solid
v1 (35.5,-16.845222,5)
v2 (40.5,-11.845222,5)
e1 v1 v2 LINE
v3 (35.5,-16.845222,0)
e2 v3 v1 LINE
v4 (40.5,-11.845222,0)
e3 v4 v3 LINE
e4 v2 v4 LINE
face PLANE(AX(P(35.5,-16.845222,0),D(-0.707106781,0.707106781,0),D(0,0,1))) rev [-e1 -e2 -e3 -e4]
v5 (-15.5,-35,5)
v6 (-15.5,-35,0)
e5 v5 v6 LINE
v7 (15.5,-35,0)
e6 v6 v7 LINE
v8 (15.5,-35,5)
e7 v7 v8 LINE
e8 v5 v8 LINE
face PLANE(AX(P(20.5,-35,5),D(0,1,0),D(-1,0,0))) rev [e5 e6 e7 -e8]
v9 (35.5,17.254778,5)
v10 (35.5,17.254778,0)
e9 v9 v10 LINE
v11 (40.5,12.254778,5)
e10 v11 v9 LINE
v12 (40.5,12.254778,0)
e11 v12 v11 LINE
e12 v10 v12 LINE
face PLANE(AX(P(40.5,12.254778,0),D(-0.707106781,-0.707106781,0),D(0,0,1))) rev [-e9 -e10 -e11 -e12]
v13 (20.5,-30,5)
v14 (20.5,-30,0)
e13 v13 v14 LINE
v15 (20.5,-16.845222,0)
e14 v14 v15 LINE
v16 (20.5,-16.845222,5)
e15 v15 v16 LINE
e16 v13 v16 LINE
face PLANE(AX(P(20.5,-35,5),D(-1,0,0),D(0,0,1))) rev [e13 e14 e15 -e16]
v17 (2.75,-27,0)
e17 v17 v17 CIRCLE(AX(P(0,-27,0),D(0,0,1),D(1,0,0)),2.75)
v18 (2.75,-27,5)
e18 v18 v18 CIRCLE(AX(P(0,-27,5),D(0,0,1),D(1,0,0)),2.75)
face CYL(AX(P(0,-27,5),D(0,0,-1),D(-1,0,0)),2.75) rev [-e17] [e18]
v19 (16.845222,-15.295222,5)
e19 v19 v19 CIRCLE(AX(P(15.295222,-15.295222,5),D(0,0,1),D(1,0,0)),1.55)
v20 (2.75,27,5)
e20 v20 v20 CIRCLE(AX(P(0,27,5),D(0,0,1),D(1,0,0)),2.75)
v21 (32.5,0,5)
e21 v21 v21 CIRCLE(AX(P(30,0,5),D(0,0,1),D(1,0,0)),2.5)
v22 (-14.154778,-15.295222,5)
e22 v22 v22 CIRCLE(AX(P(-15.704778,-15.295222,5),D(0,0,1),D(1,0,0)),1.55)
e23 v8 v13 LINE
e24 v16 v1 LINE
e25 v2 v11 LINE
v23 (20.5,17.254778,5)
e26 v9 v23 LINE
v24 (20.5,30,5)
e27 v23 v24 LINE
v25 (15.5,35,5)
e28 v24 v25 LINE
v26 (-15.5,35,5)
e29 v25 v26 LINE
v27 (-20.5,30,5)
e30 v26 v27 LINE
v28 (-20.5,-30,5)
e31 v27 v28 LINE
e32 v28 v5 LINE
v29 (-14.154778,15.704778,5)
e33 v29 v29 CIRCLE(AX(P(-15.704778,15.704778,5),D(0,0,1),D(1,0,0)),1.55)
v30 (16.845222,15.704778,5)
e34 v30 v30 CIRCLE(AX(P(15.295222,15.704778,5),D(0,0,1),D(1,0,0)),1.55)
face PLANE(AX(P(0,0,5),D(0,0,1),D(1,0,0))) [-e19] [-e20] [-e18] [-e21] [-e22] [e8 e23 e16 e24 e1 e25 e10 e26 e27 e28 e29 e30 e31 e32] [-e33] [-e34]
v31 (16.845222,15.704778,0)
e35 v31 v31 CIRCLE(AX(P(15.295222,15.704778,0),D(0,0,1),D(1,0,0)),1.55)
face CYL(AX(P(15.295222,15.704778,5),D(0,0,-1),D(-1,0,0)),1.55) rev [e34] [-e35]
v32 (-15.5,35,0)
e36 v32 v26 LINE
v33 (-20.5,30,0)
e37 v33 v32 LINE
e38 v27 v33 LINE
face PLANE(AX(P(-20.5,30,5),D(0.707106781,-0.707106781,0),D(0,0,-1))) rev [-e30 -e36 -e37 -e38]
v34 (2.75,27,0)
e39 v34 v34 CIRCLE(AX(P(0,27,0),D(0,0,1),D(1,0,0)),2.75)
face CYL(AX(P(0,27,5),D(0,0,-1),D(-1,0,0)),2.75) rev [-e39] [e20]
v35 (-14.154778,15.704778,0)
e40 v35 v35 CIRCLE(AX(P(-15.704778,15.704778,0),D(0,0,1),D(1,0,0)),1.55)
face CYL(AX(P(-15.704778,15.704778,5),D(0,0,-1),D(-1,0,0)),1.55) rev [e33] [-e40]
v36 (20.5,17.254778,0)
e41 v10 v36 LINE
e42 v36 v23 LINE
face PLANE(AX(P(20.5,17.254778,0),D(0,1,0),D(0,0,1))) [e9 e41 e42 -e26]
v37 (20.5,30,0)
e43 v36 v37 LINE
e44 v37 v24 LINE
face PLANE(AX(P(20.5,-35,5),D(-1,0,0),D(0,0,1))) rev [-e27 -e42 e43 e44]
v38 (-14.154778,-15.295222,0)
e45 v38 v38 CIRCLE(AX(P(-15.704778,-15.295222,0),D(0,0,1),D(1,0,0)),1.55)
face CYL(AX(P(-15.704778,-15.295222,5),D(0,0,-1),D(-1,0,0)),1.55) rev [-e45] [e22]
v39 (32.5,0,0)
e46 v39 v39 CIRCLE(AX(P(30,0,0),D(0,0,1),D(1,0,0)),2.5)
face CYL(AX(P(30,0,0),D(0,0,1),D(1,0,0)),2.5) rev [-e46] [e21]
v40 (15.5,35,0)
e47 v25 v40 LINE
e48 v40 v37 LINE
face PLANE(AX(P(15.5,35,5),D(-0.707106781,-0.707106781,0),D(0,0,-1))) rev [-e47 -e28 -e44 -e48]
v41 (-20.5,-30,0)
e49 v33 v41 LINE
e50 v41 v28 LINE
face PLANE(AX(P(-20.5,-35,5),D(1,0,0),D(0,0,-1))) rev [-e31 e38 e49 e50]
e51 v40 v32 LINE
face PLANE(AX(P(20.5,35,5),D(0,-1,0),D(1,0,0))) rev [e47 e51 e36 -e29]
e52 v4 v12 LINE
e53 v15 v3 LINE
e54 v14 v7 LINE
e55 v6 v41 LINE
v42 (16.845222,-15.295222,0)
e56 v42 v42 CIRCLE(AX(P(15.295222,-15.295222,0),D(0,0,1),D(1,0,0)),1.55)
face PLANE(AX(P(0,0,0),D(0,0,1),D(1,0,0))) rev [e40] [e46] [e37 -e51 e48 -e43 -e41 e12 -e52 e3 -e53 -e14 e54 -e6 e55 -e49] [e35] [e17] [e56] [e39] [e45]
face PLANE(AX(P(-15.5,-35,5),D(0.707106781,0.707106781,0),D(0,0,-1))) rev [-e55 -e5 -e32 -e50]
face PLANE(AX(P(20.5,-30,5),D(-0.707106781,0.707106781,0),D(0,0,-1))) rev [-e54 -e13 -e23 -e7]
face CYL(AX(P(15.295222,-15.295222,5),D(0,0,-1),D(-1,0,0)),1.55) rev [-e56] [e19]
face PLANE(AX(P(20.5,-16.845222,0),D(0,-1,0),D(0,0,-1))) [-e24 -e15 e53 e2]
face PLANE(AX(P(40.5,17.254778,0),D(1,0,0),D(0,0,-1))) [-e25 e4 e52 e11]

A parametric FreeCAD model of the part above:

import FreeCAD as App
import Part
import Sketcher
from FreeCAD import Vector
Q = App.Units.Quantity


def edges_at(feature, points):
    """Names of the edges that pass closest to the given points."""
    edges = feature.Shape.Edges
    near = lambda p: min(range(len(edges)), key=lambda i: edges[i].distToShape(Part.Vertex(*p))[0])
    return sorted({f"Edge{near(p) + 1}" for p in points})

doc = App.newDocument("Part")
params = doc.addObject("Spreadsheet::Sheet", "Params")
for row, (alias, value) in enumerate([
    ("sketch1_diameter", "3.1 mm"),
    ("sketch1_diameter2", "5.5 mm"),
    ("sketch1_width", "41 mm"),
    ("sketch1_height", "70 mm"),
    ("pad1_length", "5 mm"),
    ("chamfer_size", "5 mm"),
    ("sketch2_diameter", "5 mm"),
    ("sketch2_width", "20 mm"),
    ("sketch2_height", "34.1 mm"),
    ("pad2_length", "5 mm"),
    ("chamfer2_size", "5 mm"),
], start=1):
    params.set(f"A{row}", alias)
    params.set(f"B{row}", "=" + value)
    params.setAlias(f"B{row}", alias)

body = doc.addObject("PartDesign::Body", "Body")

# Sketch on XY plane
sketch1 = doc.addObject("Sketcher::SketchObject", "Sketch")
body.addObject(sketch1)
sketch1.AttachmentSupport = (doc.XY_Plane, [""])
sketch1.MapMode = "FlatFace"
sketch1.addGeometry(Part.LineSegment(Vector(-20.5, 35, 0), Vector(-20.5, -35, 0)), False)
sketch1.addGeometry(Part.LineSegment(Vector(-20.5, -35, 0), Vector(20.5, -35, 0)), False)
sketch1.addGeometry(Part.LineSegment(Vector(20.5, -35, 0), Vector(20.5, 35, 0)), False)
sketch1.addGeometry(Part.LineSegment(Vector(20.5, 35, 0), Vector(-20.5, 35, 0)), False)
sketch1.addGeometry(Part.Circle(Vector(-15.704778, -15.295222, 0), Vector(0, 0, 1), 1.55), False)
sketch1.addGeometry(Part.Circle(Vector(0, -27, 0), Vector(0, 0, 1), 2.75), False)
sketch1.addGeometry(Part.Circle(Vector(15.295222, -15.295222, 0), Vector(0, 0, 1), 1.55), False)
sketch1.addGeometry(Part.Circle(Vector(-15.704778, 15.704778, 0), Vector(0, 0, 1), 1.55), False)
sketch1.addGeometry(Part.Circle(Vector(0, 27, 0), Vector(0, 0, 1), 2.75), False)
sketch1.addGeometry(Part.Circle(Vector(15.295222, 15.704778, 0), Vector(0, 0, 1), 1.55), False)
sketch1.addConstraint(Sketcher.Constraint("Coincident", 0, 2, 1, 1))
sketch1.addConstraint(Sketcher.Constraint("Coincident", 1, 2, 2, 1))
sketch1.addConstraint(Sketcher.Constraint("Coincident", 2, 2, 3, 1))
sketch1.addConstraint(Sketcher.Constraint("Coincident", 3, 2, 0, 1))
sketch1.addConstraint(Sketcher.Constraint("Vertical", 0))
sketch1.addConstraint(Sketcher.Constraint("Horizontal", 1))
sketch1.addConstraint(Sketcher.Constraint("Vertical", 2))
sketch1.addConstraint(Sketcher.Constraint("Horizontal", 3))
sketch1.addConstraint(Sketcher.Constraint("Equal", 4, 6))
sketch1.addConstraint(Sketcher.Constraint("Equal", 6, 7))
sketch1.addConstraint(Sketcher.Constraint("Equal", 5, 8))
sketch1.addConstraint(Sketcher.Constraint("Equal", 7, 9))
sketch1.addConstraint(Sketcher.Constraint("Symmetric", 5, 3, 8, 3, -1, 1))
sketch1.addConstraint(Sketcher.Constraint("Symmetric", 0, 2, 2, 2, -1, 1))
sketch1.addConstraint(Sketcher.Constraint("PointOnObject", 5, 3, -2))
sketch1.addConstraint(Sketcher.Constraint("Horizontal", 4, 3, 6, 3))
sketch1.addConstraint(Sketcher.Constraint("Horizontal", 7, 3, 9, 3))
sketch1.addConstraint(Sketcher.Constraint("Vertical", 4, 3, 7, 3))
sketch1.addConstraint(Sketcher.Constraint("Vertical", 6, 3, 9, 3))
sketch1.addConstraint(Sketcher.Constraint("Diameter", 4, Q("3.1 mm")))
sketch1.addConstraint(Sketcher.Constraint("Diameter", 5, Q("5.5 mm")))
sketch1.addConstraint(Sketcher.Constraint("DistanceX", 1, 1, 1, 2, Q("41 mm")))
sketch1.addConstraint(Sketcher.Constraint("DistanceY", 0, 2, 0, 1, Q("70 mm")))
sketch1.addConstraint(Sketcher.Constraint("DistanceY", 5, 3, -1, 1, Q("27 mm")))
sketch1.addConstraint(Sketcher.Constraint("DistanceX", 4, 3, 6, 3, Q("31 mm")))
sketch1.addConstraint(Sketcher.Constraint("DistanceY", 4, 3, 7, 3, Q("31 mm")))
sketch1.addConstraint(Sketcher.Constraint("DistanceX", 4, 3, -1, 1, Q("15.704778 mm")))
sketch1.addConstraint(Sketcher.Constraint("DistanceY", 4, 3, -1, 1, Q("15.295222 mm")))
sketch1.setExpression("Constraints[19]", "Params.sketch1_diameter")
sketch1.setExpression("Constraints[20]", "Params.sketch1_diameter2")
sketch1.setExpression("Constraints[21]", "Params.sketch1_width")
sketch1.setExpression("Constraints[22]", "Params.sketch1_height")
pad1 = doc.addObject("PartDesign::Pad", "Pad")
body.addObject(pad1)
pad1.Profile = sketch1
pad1.setExpression("Length", "Params.pad1_length")
doc.recompute()

chamfer = doc.addObject("PartDesign::Chamfer", "Chamfer")
body.addObject(chamfer)
chamfer.Base = (pad1, edges_at(pad1, [
    (-20.5, 35, 2.5),
    (20.5, 35, 2.5),
    (20.5, -35, 2.5),
    (-20.5, -35, 2.5),
]))
chamfer.setExpression("Size", "Params.chamfer_size")

# Sketch on XY plane
sketch2 = doc.addObject("Sketcher::SketchObject", "Sketch001")
body.addObject(sketch2)
sketch2.AttachmentSupport = (doc.XY_Plane, [""])
sketch2.MapMode = "FlatFace"
sketch2.AttachmentOffset = App.Placement(Vector(0, 0, 5), App.Rotation())
sketch2.addGeometry(Part.LineSegment(Vector(20.5, 17.254778, 0), Vector(20.5, -16.845222, 0)), False)
sketch2.addGeometry(Part.LineSegment(Vector(20.5, -16.845222, 0), Vector(40.5, -16.845222, 0)), False)
sketch2.addGeometry(Part.LineSegment(Vector(40.5, -16.845222, 0), Vector(40.5, 17.254778, 0)), False)
sketch2.addGeometry(Part.LineSegment(Vector(40.5, 17.254778, 0), Vector(20.5, 17.254778, 0)), False)
sketch2.addGeometry(Part.Circle(Vector(30, 0, 0), Vector(0, 0, 1), 2.5), False)
sketch2.addConstraint(Sketcher.Constraint("Coincident", 0, 2, 1, 1))
sketch2.addConstraint(Sketcher.Constraint("Coincident", 1, 2, 2, 1))
sketch2.addConstraint(Sketcher.Constraint("Coincident", 2, 2, 3, 1))
sketch2.addConstraint(Sketcher.Constraint("Coincident", 3, 2, 0, 1))
sketch2.addConstraint(Sketcher.Constraint("Vertical", 0))
sketch2.addConstraint(Sketcher.Constraint("Horizontal", 1))
sketch2.addConstraint(Sketcher.Constraint("Vertical", 2))
sketch2.addConstraint(Sketcher.Constraint("Horizontal", 3))
sketch2.addConstraint(Sketcher.Constraint("PointOnObject", 4, 3, -1))
sketch2.addConstraint(Sketcher.Constraint("Diameter", 4, Q("5 mm")))
sketch2.addConstraint(Sketcher.Constraint("DistanceX", 1, 1, 1, 2, Q("20 mm")))
sketch2.addConstraint(Sketcher.Constraint("DistanceY", 0, 2, 0, 1, Q("34.1 mm")))
sketch2.addConstraint(Sketcher.Constraint("DistanceX", -1, 1, 4, 3, Q("30 mm")))
sketch2.addConstraint(Sketcher.Constraint("DistanceX", -1, 1, 0, 2, Q("20.5 mm")))
sketch2.addConstraint(Sketcher.Constraint("DistanceY", 0, 2, -1, 1, Q("16.845222 mm")))
sketch2.setExpression("Constraints[9]", "Params.sketch2_diameter")
sketch2.setExpression("Constraints[10]", "Params.sketch2_width")
sketch2.setExpression("Constraints[11]", "Params.sketch2_height")
pad2 = doc.addObject("PartDesign::Pad", "Pad001")
body.addObject(pad2)
pad2.Profile = sketch2
pad2.setExpression("Length", "Params.pad2_length")
pad2.Reversed = True
doc.recompute()

chamfer2 = doc.addObject("PartDesign::Chamfer", "Chamfer001")
body.addObject(chamfer2)
chamfer2.Base = (pad2, edges_at(pad2, [(40.5, 17.255, 2.5), (40.5, -16.845, 2.5)]))
chamfer2.setExpression("Size", "Params.chamfer2_size")

doc.recompute()
